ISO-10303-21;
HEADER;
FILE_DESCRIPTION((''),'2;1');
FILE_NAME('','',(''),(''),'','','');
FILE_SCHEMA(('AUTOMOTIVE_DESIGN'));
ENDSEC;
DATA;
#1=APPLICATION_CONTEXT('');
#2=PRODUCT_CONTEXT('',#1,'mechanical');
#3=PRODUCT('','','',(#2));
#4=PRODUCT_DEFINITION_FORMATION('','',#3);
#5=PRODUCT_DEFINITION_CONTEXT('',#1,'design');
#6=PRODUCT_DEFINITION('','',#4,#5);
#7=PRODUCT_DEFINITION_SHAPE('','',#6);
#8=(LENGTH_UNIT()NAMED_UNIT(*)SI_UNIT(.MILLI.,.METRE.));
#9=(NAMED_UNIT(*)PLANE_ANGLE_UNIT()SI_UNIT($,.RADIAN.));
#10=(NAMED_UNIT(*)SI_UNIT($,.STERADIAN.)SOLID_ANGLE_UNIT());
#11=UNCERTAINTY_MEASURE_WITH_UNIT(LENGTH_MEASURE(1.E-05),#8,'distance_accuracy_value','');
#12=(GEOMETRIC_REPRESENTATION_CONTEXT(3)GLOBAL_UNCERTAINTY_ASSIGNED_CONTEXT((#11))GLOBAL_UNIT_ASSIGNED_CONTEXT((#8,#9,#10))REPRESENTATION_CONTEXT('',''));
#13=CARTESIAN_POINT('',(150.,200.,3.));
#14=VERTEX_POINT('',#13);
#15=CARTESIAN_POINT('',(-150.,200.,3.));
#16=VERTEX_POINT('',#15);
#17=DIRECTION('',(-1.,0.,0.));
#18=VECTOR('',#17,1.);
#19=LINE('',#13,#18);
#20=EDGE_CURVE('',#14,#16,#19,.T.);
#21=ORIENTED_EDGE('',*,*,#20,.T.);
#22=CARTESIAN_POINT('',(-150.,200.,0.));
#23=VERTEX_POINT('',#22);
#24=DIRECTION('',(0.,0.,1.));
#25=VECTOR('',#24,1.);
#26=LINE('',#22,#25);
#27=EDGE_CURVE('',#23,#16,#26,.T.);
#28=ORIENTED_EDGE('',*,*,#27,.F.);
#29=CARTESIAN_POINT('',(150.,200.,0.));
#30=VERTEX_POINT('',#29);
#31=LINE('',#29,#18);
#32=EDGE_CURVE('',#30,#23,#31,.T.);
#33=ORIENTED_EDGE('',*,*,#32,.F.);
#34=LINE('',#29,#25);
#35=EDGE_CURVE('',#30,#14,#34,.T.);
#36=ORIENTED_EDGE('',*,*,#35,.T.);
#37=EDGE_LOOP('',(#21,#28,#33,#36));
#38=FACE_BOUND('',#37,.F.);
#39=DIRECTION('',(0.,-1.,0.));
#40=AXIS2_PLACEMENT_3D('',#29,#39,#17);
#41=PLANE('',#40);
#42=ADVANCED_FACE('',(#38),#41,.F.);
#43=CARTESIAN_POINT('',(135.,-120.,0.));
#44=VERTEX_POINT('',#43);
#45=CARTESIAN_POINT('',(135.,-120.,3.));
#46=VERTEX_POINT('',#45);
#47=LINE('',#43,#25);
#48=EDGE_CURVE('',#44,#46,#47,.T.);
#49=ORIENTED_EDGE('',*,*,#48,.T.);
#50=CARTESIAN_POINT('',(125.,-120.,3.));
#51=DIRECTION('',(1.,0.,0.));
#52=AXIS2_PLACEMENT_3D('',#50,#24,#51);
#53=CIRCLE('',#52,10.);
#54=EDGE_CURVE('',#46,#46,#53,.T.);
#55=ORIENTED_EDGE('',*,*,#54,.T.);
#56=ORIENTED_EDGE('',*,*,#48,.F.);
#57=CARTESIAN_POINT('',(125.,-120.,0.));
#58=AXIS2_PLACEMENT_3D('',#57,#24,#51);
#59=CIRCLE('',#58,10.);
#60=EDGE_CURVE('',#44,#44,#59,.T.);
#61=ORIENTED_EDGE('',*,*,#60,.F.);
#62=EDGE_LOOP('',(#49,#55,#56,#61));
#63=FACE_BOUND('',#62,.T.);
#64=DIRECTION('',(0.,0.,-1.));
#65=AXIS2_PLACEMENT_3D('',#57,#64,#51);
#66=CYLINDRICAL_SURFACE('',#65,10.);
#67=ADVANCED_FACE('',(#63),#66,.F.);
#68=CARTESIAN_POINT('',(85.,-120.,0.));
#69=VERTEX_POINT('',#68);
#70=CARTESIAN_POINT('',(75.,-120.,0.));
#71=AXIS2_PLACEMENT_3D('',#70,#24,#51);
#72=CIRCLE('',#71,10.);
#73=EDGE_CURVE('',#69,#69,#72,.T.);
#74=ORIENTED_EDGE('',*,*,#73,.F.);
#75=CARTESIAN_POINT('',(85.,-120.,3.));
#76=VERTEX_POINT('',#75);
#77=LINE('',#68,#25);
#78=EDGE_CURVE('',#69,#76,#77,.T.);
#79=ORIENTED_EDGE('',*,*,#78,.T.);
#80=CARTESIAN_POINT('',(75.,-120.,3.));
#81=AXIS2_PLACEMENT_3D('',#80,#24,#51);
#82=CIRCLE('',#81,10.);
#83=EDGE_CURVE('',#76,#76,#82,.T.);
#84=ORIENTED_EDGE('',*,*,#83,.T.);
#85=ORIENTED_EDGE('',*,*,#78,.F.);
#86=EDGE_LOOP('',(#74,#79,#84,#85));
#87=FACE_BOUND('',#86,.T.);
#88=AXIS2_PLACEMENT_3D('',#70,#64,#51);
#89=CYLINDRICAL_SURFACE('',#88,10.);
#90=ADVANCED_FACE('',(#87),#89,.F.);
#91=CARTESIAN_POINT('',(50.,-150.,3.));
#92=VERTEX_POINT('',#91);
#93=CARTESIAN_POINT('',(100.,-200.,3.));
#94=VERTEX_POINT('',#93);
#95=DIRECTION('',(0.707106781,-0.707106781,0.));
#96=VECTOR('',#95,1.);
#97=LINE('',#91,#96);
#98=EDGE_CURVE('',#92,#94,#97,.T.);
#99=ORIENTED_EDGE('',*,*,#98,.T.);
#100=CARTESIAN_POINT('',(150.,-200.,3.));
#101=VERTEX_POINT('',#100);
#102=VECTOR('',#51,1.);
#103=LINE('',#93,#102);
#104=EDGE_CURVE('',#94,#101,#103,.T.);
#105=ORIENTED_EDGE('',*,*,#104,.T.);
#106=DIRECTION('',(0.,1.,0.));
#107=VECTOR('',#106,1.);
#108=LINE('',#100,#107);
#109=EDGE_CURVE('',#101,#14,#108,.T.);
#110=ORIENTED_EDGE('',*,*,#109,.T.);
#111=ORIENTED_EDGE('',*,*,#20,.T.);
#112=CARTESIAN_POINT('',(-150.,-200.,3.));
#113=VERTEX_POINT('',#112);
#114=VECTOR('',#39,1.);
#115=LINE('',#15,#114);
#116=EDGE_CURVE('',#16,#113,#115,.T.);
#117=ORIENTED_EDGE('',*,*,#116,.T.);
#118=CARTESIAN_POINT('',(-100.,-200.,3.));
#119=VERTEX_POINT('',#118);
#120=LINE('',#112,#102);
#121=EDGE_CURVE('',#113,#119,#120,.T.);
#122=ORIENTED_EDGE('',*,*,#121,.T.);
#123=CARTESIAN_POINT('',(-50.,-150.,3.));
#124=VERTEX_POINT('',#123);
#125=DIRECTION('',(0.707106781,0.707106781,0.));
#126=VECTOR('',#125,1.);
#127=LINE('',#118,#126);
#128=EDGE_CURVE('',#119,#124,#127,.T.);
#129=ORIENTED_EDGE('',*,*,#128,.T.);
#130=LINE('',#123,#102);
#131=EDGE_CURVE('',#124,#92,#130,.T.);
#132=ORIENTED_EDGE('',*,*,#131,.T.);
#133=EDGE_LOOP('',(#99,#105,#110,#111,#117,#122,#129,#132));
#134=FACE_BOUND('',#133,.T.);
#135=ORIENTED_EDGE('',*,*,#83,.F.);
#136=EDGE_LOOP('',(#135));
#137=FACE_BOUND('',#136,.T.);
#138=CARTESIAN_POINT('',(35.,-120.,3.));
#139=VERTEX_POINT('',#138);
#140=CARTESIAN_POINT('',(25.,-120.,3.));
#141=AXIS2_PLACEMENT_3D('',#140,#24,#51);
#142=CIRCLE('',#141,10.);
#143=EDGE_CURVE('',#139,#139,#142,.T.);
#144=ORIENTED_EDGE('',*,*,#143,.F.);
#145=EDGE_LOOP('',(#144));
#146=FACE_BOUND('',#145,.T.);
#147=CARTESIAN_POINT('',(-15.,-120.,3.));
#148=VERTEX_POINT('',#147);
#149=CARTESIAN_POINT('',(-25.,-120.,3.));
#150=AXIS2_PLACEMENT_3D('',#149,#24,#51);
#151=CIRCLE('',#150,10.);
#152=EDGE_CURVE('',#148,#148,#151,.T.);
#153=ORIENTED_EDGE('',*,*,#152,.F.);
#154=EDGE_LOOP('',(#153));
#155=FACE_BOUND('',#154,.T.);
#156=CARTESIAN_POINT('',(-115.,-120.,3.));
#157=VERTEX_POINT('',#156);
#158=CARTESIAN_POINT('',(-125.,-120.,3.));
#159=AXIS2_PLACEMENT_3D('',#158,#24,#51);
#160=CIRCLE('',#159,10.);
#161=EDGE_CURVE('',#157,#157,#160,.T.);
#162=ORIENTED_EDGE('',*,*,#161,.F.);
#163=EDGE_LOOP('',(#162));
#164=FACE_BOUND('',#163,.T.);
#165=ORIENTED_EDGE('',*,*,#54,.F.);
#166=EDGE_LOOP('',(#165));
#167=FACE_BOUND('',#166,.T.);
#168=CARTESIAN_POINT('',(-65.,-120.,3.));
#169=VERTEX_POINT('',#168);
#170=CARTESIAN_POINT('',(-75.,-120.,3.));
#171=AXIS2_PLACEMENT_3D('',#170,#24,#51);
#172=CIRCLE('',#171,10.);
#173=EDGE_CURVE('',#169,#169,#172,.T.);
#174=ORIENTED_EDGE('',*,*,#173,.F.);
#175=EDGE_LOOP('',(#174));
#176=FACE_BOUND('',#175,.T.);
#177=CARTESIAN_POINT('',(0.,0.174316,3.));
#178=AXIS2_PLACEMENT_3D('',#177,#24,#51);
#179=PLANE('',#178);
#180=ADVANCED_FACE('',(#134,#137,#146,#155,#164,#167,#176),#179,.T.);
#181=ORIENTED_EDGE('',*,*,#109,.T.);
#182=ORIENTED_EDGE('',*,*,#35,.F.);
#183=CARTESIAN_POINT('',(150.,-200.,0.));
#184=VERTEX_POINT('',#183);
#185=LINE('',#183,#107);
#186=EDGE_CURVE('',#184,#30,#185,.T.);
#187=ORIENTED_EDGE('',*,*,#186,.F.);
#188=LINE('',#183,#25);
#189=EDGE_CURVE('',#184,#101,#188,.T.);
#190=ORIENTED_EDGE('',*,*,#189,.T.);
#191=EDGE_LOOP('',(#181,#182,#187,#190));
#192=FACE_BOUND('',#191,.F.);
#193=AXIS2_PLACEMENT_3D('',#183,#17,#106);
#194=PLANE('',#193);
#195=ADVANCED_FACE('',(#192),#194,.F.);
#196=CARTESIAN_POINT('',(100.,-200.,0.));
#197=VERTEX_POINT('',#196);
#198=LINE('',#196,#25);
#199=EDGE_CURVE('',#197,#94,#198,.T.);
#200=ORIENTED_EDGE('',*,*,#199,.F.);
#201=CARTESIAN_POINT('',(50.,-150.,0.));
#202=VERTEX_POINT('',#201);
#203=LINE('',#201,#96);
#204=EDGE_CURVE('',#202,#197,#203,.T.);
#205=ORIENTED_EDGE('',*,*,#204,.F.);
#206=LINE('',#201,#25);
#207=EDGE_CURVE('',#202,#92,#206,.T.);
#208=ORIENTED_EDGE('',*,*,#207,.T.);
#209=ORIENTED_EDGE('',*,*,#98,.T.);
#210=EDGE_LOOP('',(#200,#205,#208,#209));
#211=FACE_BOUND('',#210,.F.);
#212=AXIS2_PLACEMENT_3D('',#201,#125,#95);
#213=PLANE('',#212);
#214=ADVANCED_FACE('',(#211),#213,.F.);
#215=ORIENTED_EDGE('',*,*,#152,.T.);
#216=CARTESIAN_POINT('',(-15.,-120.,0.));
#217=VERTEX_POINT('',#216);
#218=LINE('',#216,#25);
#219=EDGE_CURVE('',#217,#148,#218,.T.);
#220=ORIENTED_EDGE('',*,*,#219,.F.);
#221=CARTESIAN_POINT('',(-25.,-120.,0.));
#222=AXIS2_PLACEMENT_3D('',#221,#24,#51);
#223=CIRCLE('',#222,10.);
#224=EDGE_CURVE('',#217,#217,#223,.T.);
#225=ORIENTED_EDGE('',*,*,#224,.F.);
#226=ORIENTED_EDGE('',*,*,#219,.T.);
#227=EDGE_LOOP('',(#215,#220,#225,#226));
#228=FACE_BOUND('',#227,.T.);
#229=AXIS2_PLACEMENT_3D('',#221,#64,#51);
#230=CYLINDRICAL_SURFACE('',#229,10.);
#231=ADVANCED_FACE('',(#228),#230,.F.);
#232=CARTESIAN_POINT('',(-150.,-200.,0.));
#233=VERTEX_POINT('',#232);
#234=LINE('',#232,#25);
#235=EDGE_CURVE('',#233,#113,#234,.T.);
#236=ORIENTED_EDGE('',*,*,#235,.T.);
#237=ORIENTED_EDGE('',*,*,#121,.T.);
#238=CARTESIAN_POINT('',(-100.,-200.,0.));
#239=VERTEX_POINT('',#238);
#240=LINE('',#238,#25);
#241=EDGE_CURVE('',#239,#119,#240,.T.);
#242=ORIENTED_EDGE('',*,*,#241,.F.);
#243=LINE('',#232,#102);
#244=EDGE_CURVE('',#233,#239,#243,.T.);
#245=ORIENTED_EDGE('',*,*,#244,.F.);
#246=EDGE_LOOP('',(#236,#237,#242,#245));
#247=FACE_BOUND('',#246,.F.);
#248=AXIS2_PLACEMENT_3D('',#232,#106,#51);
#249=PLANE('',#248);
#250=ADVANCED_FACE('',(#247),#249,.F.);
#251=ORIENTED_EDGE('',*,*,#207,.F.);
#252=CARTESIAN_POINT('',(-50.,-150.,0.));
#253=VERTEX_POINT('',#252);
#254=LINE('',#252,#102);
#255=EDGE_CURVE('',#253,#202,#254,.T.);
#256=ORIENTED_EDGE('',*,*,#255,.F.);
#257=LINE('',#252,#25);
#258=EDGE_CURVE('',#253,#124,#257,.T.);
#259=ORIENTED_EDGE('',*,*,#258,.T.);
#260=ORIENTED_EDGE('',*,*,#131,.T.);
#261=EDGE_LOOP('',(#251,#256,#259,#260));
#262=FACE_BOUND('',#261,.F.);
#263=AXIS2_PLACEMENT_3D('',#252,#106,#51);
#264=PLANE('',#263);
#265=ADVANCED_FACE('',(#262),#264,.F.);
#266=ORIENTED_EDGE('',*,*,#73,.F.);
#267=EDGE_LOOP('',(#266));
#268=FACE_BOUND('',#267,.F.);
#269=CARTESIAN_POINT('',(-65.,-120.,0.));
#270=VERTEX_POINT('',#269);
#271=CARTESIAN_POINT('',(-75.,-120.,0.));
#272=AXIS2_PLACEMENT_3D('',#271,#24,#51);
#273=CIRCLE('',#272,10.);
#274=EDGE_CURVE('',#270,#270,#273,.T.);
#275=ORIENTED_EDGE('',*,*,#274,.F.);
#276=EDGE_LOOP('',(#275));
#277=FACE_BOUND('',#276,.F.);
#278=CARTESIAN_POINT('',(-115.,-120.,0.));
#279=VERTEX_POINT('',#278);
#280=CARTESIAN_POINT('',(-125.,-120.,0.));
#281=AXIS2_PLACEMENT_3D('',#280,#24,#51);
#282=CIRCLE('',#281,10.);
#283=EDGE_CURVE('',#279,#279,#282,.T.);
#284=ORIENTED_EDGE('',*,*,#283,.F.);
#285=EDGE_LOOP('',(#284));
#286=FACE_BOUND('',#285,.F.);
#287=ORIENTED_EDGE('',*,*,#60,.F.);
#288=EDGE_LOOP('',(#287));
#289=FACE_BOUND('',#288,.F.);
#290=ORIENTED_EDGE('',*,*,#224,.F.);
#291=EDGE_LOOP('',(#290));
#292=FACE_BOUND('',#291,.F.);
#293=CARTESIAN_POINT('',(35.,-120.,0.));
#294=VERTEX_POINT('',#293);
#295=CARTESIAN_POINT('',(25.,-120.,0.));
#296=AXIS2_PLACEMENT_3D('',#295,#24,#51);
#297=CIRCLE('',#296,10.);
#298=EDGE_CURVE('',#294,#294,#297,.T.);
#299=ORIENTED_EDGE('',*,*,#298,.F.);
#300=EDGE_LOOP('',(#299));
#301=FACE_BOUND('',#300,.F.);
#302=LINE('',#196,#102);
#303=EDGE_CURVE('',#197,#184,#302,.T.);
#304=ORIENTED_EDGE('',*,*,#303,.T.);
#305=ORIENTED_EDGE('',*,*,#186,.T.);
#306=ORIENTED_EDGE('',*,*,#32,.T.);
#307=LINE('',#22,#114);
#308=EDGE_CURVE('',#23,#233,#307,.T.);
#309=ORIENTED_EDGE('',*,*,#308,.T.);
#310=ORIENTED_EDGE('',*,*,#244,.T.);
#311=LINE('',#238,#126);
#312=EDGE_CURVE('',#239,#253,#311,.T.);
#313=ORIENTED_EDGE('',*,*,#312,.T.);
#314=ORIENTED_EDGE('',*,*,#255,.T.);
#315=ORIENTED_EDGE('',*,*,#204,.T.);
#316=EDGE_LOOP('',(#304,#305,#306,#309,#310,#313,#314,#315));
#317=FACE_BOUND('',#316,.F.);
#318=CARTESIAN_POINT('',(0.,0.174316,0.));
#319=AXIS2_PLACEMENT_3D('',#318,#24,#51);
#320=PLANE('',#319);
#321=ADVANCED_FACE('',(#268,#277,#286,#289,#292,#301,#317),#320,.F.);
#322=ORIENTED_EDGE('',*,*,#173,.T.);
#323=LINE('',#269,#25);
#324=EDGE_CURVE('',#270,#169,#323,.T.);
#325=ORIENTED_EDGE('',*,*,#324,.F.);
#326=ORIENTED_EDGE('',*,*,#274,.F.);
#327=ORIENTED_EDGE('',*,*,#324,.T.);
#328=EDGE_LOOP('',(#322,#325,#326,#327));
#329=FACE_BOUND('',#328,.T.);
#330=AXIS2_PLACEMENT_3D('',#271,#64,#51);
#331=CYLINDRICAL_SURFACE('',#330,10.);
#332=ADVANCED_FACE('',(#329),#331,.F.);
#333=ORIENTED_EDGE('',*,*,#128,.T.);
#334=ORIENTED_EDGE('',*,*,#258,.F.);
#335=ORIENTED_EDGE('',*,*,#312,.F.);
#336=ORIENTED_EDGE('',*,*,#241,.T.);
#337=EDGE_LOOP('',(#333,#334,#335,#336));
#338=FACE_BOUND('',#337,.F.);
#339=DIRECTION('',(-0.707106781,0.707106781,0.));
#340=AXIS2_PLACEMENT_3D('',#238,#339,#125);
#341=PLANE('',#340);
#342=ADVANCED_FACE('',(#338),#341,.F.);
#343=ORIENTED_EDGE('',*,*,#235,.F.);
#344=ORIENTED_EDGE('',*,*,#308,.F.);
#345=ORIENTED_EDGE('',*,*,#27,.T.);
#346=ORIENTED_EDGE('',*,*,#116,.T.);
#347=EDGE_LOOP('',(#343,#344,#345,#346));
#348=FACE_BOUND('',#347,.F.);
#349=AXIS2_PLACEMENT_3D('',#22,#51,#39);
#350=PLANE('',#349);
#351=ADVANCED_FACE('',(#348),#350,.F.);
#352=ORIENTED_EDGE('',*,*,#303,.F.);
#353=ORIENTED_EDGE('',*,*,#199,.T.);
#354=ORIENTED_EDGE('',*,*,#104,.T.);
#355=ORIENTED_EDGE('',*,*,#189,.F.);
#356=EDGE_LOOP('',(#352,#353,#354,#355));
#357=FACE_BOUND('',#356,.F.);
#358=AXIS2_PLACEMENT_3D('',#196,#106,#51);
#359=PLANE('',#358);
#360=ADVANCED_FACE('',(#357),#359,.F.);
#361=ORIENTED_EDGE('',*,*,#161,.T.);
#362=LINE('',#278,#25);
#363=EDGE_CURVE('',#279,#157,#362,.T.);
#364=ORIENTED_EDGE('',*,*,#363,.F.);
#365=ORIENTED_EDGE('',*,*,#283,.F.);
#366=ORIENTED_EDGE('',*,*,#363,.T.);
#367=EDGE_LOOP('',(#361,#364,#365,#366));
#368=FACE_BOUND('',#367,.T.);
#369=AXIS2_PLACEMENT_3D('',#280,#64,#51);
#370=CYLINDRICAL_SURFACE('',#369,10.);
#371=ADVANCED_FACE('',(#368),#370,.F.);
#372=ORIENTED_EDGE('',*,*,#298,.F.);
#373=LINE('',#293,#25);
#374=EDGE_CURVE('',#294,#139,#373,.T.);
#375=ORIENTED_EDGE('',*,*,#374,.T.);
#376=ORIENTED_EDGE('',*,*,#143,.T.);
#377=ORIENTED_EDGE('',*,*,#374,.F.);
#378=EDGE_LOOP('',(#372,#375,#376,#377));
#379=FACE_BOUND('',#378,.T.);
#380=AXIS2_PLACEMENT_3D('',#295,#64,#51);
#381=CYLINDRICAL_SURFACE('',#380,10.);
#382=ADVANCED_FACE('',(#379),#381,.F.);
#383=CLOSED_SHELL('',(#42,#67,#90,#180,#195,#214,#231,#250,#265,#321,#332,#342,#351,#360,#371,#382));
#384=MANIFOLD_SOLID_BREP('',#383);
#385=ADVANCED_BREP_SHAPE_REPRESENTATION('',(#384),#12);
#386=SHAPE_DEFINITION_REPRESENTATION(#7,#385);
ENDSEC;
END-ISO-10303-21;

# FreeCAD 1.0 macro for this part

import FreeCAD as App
import Part
import Sketcher

V = App.Vector


def add_polygon(sketch, points):
    """Adds a closed chain of lines whose ends are joined by coincident constraints."""
    first, n = sketch.GeometryCount, len(points)
    for a, b in zip(points, points[1:] + points[:1]):
        sketch.addGeometry(Part.LineSegment(App.Vector(*a, 0), App.Vector(*b, 0)), False)
    for i in range(n):
        sketch.addConstraint(Sketcher.Constraint("Coincident", first + i, 2, first + (i + 1) % n, 1))

doc = App.newDocument("Part")
params = doc.addObject("Spreadsheet::Sheet", "Params")
for row, (alias, value) in enumerate([
    ("sketch1_diameter", "20 mm"),
    ("sketch1_width", "50 mm"),
    ("sketch1_width2", "100 mm"),
    ("sketch1_width3", "300 mm"),
    ("sketch1_height", "400 mm"),
    ("pad1_length", "3 mm"),
], start=1):
    params.set(f"A{row}", alias)
    params.set(f"B{row}", "=" + value)
    params.setAlias(f"B{row}", alias)

body = doc.addObject("PartDesign::Body", "Body")

sketch1 = doc.addObject("Sketcher::SketchObject", "Sketch")
body.addObject(sketch1)
sketch1.AttachmentSupport = (doc.XY_Plane, [""])
sketch1.MapMode = "FlatFace"
add_polygon(sketch1, [(-150, 200), (-150, -200), (-100, -200), (-50, -150), (50, -150), (100, -200), (150, -200), (150, 200)])
sketch1.addGeometry(Part.Circle(V(-125, -120, 0), V(0, 0, 1), 10), False)
sketch1.addGeometry(Part.Circle(V(-75, -120, 0), V(0, 0, 1), 10), False)
sketch1.addGeometry(Part.Circle(V(-25, -120, 0), V(0, 0, 1), 10), False)
sketch1.addGeometry(Part.Circle(V(25, -120, 0), V(0, 0, 1), 10), False)
sketch1.addGeometry(Part.Circle(V(75, -120, 0), V(0, 0, 1), 10), False)
sketch1.addGeometry(Part.Circle(V(125, -120, 0), V(0, 0, 1), 10), False)
sketch1.addConstraint(Sketcher.Constraint("Vertical", 0))
sketch1.addConstraint(Sketcher.Constraint("Horizontal", 1))
sketch1.addConstraint(Sketcher.Constraint("Horizontal", 3))
sketch1.addConstraint(Sketcher.Constraint("Horizontal", 5))
sketch1.addConstraint(Sketcher.Constraint("Vertical", 6))
sketch1.addConstraint(Sketcher.Constraint("Horizontal", 7))
sketch1.addConstraint(Sketcher.Constraint("Equal", 8, 9))
sketch1.addConstraint(Sketcher.Constraint("Equal", 9, 10))
sketch1.addConstraint(Sketcher.Constraint("Equal", 10, 11))
sketch1.addConstraint(Sketcher.Constraint("Equal", 11, 12))
sketch1.addConstraint(Sketcher.Constraint("Equal", 12, 13))
sketch1.addConstraint(Sketcher.Constraint("Symmetric", 0, 2, 6, 2, -1, 1))
sketch1.addConstraint(Sketcher.Constraint("Symmetric", 10, 3, 11, 3, -2))
sketch1.addConstraint(Sketcher.Constraint("Symmetric", 9, 3, 12, 3, -2))
sketch1.addConstraint(Sketcher.Constraint("Symmetric", 8, 3, 13, 3, -2))
sketch1.addConstraint(Sketcher.Constraint("Symmetric", 1, 2, 4, 2, -2))
sketch1.addConstraint(Sketcher.Constraint("Perpendicular", 2, 4))
sketch1.addConstraint(Sketcher.Constraint("Horizontal", 8, 3, 9, 3))
sketch1.addConstraint(Sketcher.Constraint("Horizontal", 9, 3, 10, 3))
sketch1.addConstraint(Sketcher.Constraint("Equal", 2, 4))
sketch1.addConstraint(Sketcher.Constraint("Diameter", 8, 20.0))
sketch1.addConstraint(Sketcher.Constraint("DistanceX", 1, 1, 1, 2, 50.0))
sketch1.addConstraint(Sketcher.Constraint("DistanceX", 3, 1, 3, 2, 100.0))
sketch1.addConstraint(Sketcher.Constraint("DistanceX", 7, 2, 7, 1, 300.0))
sketch1.addConstraint(Sketcher.Constraint("DistanceY", 0, 2, 0, 1, 400.0))
sketch1.addConstraint(Sketcher.Constraint("DistanceX", 8, 3, -1, 1, 125.0))
sketch1.addConstraint(Sketcher.Constraint("DistanceY", 8, 3, -1, 1, 120.0))
sketch1.addConstraint(Sketcher.Constraint("DistanceX", 9, 3, -1, 1, 75.0))
sketch1.addConstraint(Sketcher.Constraint("DistanceX", 10, 3, -1, 1, 25.0))
sketch1.setExpression("Constraints[28]", "Params.sketch1_diameter")
sketch1.setExpression("Constraints[29]", "Params.sketch1_width")
sketch1.setExpression("Constraints[30]", "Params.sketch1_width2")
sketch1.setExpression("Constraints[31]", "Params.sketch1_width3")
sketch1.setExpression("Constraints[32]", "Params.sketch1_height")
pad1 = doc.addObject("PartDesign::Pad", "Pad")
body.addObject(pad1)
pad1.Profile = sketch1
pad1.setExpression("Length", "Params.pad1_length")

doc.recompute()
